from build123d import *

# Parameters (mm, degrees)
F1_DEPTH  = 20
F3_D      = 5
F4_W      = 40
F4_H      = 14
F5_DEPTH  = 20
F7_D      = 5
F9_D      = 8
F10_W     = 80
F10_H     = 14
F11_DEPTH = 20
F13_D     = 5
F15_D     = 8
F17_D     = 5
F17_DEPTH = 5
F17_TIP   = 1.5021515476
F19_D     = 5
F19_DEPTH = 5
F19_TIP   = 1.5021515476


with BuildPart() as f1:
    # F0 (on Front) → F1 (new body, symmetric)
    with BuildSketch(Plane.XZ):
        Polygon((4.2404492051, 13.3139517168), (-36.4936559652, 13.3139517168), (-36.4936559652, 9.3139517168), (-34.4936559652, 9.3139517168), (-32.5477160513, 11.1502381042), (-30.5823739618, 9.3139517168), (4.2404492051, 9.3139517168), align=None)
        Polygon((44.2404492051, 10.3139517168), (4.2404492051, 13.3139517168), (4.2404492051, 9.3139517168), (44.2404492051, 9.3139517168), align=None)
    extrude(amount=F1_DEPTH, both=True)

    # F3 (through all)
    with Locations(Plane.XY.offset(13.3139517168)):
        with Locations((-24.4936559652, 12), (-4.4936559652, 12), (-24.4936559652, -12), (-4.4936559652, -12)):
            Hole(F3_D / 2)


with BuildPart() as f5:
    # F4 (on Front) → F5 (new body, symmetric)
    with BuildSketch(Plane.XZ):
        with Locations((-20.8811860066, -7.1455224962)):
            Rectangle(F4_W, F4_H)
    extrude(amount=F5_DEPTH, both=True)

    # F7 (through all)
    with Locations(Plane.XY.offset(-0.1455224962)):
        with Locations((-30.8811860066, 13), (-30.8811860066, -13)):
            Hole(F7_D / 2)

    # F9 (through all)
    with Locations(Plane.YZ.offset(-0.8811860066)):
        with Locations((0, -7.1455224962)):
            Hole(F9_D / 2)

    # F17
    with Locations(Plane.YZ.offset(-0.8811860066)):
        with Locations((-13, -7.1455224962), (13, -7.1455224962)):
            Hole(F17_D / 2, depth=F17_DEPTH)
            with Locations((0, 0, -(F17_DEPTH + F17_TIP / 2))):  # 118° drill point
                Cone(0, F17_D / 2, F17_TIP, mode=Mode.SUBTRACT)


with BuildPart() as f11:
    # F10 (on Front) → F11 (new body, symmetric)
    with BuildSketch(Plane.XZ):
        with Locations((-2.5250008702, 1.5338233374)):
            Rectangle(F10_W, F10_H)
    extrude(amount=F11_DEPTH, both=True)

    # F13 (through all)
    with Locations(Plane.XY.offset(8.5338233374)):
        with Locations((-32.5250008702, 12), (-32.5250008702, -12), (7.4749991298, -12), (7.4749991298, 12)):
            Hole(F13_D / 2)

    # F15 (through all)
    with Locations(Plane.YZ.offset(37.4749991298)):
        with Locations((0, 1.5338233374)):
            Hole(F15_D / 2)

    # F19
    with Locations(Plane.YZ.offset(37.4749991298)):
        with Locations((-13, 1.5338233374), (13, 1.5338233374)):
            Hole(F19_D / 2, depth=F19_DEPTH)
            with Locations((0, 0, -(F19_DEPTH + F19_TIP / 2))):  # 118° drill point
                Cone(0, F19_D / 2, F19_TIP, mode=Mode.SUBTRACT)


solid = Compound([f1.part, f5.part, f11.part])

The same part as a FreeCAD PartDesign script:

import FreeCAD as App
import Part
import Sketcher

V = App.Vector
Q = App.Units.Quantity

doc = App.newDocument("Part")
body = doc.addObject("PartDesign::Body", "Body")

sketch1 = doc.addObject("Sketcher::SketchObject", "Sketch")
body.addObject(sketch1)
sketch1.AttachmentSupport = (doc.XZ_Plane, [""])
sketch1.MapMode = "FlatFace"
sketch1.addGeometry([
    Part.LineSegment(V(4.240449, 13.313952, 0), V(-36.493656, 13.313952, 0)),
    Part.LineSegment(V(-36.493656, 13.313952, 0), V(-36.493656, 9.313952, 0)),
    Part.LineSegment(V(-36.493656, 9.313952, 0), V(-34.493656, 9.313952, 0)),
    Part.LineSegment(V(-34.493656, 9.313952, 0), V(-32.547716, 11.150238, 0)),
    Part.LineSegment(V(-32.547716, 11.150238, 0), V(-30.582374, 9.313952, 0)),
    Part.LineSegment(V(-30.582374, 9.313952, 0), V(44.240449, 9.313952, 0)),
    Part.LineSegment(V(44.240449, 9.313952, 0), V(44.240449, 10.313952, 0)),
    Part.LineSegment(V(44.240449, 10.313952, 0), V(4.240449, 13.313952, 0)),
], False)
sketch1.addConstraint([
    Sketcher.Constraint("Coincident", 0, 2, 1, 1),
    Sketcher.Constraint("Coincident", 1, 2, 2, 1),
    Sketcher.Constraint("Coincident", 2, 2, 3, 1),
    Sketcher.Constraint("Coincident", 3, 2, 4, 1),
    Sketcher.Constraint("Coincident", 4, 2, 5, 1),
    Sketcher.Constraint("Coincident", 5, 2, 6, 1),
    Sketcher.Constraint("Coincident", 6, 2, 7, 1),
    Sketcher.Constraint("Coincident", 7, 2, 0, 1),
    Sketcher.Constraint("Horizontal", 0),
    Sketcher.Constraint("Vertical", 1),
    Sketcher.Constraint("Horizontal", 2),
    Sketcher.Constraint("Horizontal", 5),
    Sketcher.Constraint("Vertical", 6),
    Sketcher.Constraint("Horizontal", 2, 2, 4, 2),
    Sketcher.Constraint("DistanceX", 2, 1, 2, 2, Q("2 mm")),
    Sketcher.Constraint("DistanceY", 1, 2, 1, 1, Q("4 mm")),
    Sketcher.Constraint("DistanceY", 6, 1, 6, 2, Q("1 mm")),
    Sketcher.Constraint("DistanceX", 7, 2, 6, 2, Q("40 mm")),
    Sketcher.Constraint("Distance", 3, Q("2.675562 mm")),
    Sketcher.Constraint("DistanceX", 0, 2, 0, 1, Q("40.734105 mm")),
    Sketcher.Constraint("DistanceX", 5, 1, 5, 2, Q("74.822823 mm")),
    Sketcher.Constraint("DistanceY", -1, 1, 0, 2, Q("13.313952 mm")),
    Sketcher.Constraint("DistanceY", -1, 1, 3, 2, Q("11.150238 mm")),
    Sketcher.Constraint("DistanceX", -1, 1, 5, 2, Q("44.240449 mm")),
])
pad1 = doc.addObject("PartDesign::Pad", "Pad")
body.addObject(pad1)
pad1.Profile = sketch1
pad1.Length = 40
pad1.Midplane = True

sketch2 = doc.addObject("Sketcher::SketchObject", "Sketch001")
body.addObject(sketch2)
sketch2.AttachmentSupport = (doc.XY_Plane, [""])
sketch2.MapMode = "FlatFace"
sketch2.AttachmentOffset = App.Placement(V(0, 0, 13.313952), App.Rotation())
sketch2.addGeometry([
    Part.Circle(V(-24.493656, 12, 0), V(0, 0, 1), 2.5),
    Part.Circle(V(-4.493656, 12, 0), V(0, 0, 1), 2.5),
    Part.Circle(V(-24.493656, -12, 0), V(0, 0, 1), 2.5),
    Part.Circle(V(-4.493656, -12, 0), V(0, 0, 1), 2.5),
], False)
sketch2.addConstraint([
    Sketcher.Constraint("Equal", 0, 1),
    Sketcher.Constraint("Equal", 1, 2),
    Sketcher.Constraint("Equal", 2, 3),
    Sketcher.Constraint("Symmetric", 0, 3, 2, 3, -1),
    Sketcher.Constraint("Symmetric", 1, 3, 3, 3, -1),
    Sketcher.Constraint("Horizontal", 0, 3, 1, 3),
    Sketcher.Constraint("Diameter", 0, Q("5 mm")),
    Sketcher.Constraint("DistanceY", -1, 1, 0, 3, Q("12 mm")),
    Sketcher.Constraint("DistanceX", 0, 3, 1, 3, Q("20 mm")),
    Sketcher.Constraint("DistanceX", 0, 3, -1, 1, Q("24.493656 mm")),
])
doc.recompute()
hole = doc.addObject("PartDesign::Hole", "Hole")
body.addObject(hole)
hole.Profile = sketch2
hole.ThreadType = "None"
hole.Diameter = 5
hole.DepthType = "ThroughAll"
body2 = doc.addObject("PartDesign::Body", "Body001")

sketch3 = doc.addObject("Sketcher::SketchObject", "Sketch002")
body2.addObject(sketch3)
sketch3.AttachmentSupport = (doc.getObject("XZ_Plane001"), [""])
sketch3.MapMode = "FlatFace"
sketch3.addGeometry([
    Part.LineSegment(V(-40.881186, -0.145522, 0), V(-40.881186, -14.145522, 0)),
    Part.LineSegment(V(-40.881186, -14.145522, 0), V(-0.881186, -14.145522, 0)),
    Part.LineSegment(V(-0.881186, -14.145522, 0), V(-0.881186, -0.145522, 0)),
    Part.LineSegment(V(-0.881186, -0.145522, 0), V(-40.881186, -0.145522, 0)),
], False)
sketch3.addConstraint([
    Sketcher.Constraint("Coincident", 0, 2, 1, 1),
    Sketcher.Constraint("Coincident", 1, 2, 2, 1),
    Sketcher.Constraint("Coincident", 2, 2, 3, 1),
    Sketcher.Constraint("Coincident", 3, 2, 0, 1),
    Sketcher.Constraint("Vertical", 0),
    Sketcher.Constraint("Horizontal", 1),
    Sketcher.Constraint("Vertical", 2),
    Sketcher.Constraint("Horizontal", 3),
    Sketcher.Constraint("DistanceX", 1, 1, 1, 2, Q("40 mm")),
    Sketcher.Constraint("DistanceY", 0, 2, 0, 1, Q("14 mm")),
    Sketcher.Constraint("DistanceX", 0, 2, -1, 1, Q("40.881186 mm")),
    Sketcher.Constraint("DistanceY", 0, 2, -1, 1, Q("14.145522 mm")),
])
pad2 = doc.addObject("PartDesign::Pad", "Pad001")
body2.addObject(pad2)
pad2.Profile = sketch3
pad2.Length = 40
pad2.Midplane = True

sketch4 = doc.addObject("Sketcher::SketchObject", "Sketch003")
body2.addObject(sketch4)
sketch4.AttachmentSupport = (doc.getObject("XY_Plane001"), [""])
sketch4.MapMode = "FlatFace"
sketch4.AttachmentOffset = App.Placement(V(0, 0, -0.145522), App.Rotation())
sketch4.addGeometry([
    Part.Circle(V(-30.881186, 13, 0), V(0, 0, 1), 2.5),
    Part.Circle(V(-30.881186, -13, 0), V(0, 0, 1), 2.5),
], False)
sketch4.addConstraint([
    Sketcher.Constraint("Equal", 0, 1),
    Sketcher.Constraint("Symmetric", 0, 3, 1, 3, -1),
    Sketcher.Constraint("Diameter", 0, Q("5 mm")),
    Sketcher.Constraint("DistanceY", -1, 1, 0, 3, Q("13 mm")),
    Sketcher.Constraint("DistanceX", 0, 3, -1, 1, Q("30.881186 mm")),
])
doc.recompute()
hole2 = doc.addObject("PartDesign::Hole", "Hole001")
body2.addObject(hole2)
hole2.Profile = sketch4
hole2.ThreadType = "None"
hole2.Diameter = 5
hole2.DepthType = "ThroughAll"

sketch5 = doc.addObject("Sketcher::SketchObject", "Sketch004")
body2.addObject(sketch5)
sketch5.AttachmentSupport = (doc.getObject("YZ_Plane001"), [""])
sketch5.MapMode = "FlatFace"
sketch5.AttachmentOffset = App.Placement(V(0, 0, -0.881186), App.Rotation())
sketch5.addGeometry(Part.Circle(V(0, -7.145522, 0), V(0, 0, 1), 4), False)
sketch5.addConstraint([
    Sketcher.Constraint("PointOnObject", 0, 3, -2),
    Sketcher.Constraint("Diameter", 0, Q("8 mm")),
    Sketcher.Constraint("DistanceY", 0, 3, -1, 1, Q("7.145522 mm")),
])
doc.recompute()
hole3 = doc.addObject("PartDesign::Hole", "Hole002")
body2.addObject(hole3)
hole3.Profile = sketch5
hole3.ThreadType = "None"
hole3.Diameter = 8
hole3.DepthType = "ThroughAll"

sketch6 = doc.addObject("Sketcher::SketchObject", "Sketch005")
body2.addObject(sketch6)
sketch6.AttachmentSupport = (doc.getObject("YZ_Plane001"), [""])
sketch6.MapMode = "FlatFace"
sketch6.AttachmentOffset = App.Placement(V(0, 0, -0.881186), App.Rotation())
sketch6.addGeometry([
    Part.Circle(V(-13, -7.145522, 0), V(0, 0, 1), 2.5),
    Part.Circle(V(13, -7.145522, 0), V(0, 0, 1), 2.5),
], False)
sketch6.addConstraint([
    Sketcher.Constraint("Equal", 0, 1),
    Sketcher.Constraint("Symmetric", 0, 3, 1, 3, -2),
    Sketcher.Constraint("Diameter", 0, Q("5 mm")),
    Sketcher.Constraint("DistanceX", 0, 3, -1, 1, Q("13 mm")),
    Sketcher.Constraint("DistanceY", 0, 3, -1, 1, Q("7.145522 mm")),
])
doc.recompute()
hole4 = doc.addObject("PartDesign::Hole", "Hole003")
body2.addObject(hole4)
hole4.Profile = sketch6
hole4.ThreadType = "None"
hole4.Diameter = 5
hole4.DepthType = "Dimension"
hole4.Depth = 5
hole4.DrillPoint = "Angled"
hole4.DrillPointAngle = 118
body3 = doc.addObject("PartDesign::Body", "Body002")

sketch7 = doc.addObject("Sketcher::SketchObject", "Sketch006")
body3.addObject(sketch7)
sketch7.AttachmentSupport = (doc.getObject("XZ_Plane002"), [""])
sketch7.MapMode = "FlatFace"
sketch7.addGeometry([
    Part.LineSegment(V(-42.525001, 8.533823, 0), V(-42.525001, -5.466177, 0)),
    Part.LineSegment(V(-42.525001, -5.466177, 0), V(37.474999, -5.466177, 0)),
    Part.LineSegment(V(37.474999, -5.466177, 0), V(37.474999, 8.533823, 0)),
    Part.LineSegment(V(37.474999, 8.533823, 0), V(-42.525001, 8.533823, 0)),
], False)
sketch7.addConstraint([
    Sketcher.Constraint("Coincident", 0, 2, 1, 1),
    Sketcher.Constraint("Coincident", 1, 2, 2, 1),
    Sketcher.Constraint("Coincident", 2, 2, 3, 1),
    Sketcher.Constraint("Coincident", 3, 2, 0, 1),
    Sketcher.Constraint("Vertical", 0),
    Sketcher.Constraint("Horizontal", 1),
    Sketcher.Constraint("Vertical", 2),
    Sketcher.Constraint("Horizontal", 3),
    Sketcher.Constraint("DistanceX", 1, 1, 1, 2, Q("80 mm")),
    Sketcher.Constraint("DistanceY", 0, 2, 0, 1, Q("14 mm")),
    Sketcher.Constraint("DistanceX", 0, 2, -1, 1, Q("42.525001 mm")),
    Sketcher.Constraint("DistanceY", 0, 2, -1, 1, Q("5.466177 mm")),
])
pad3 = doc.addObject("PartDesign::Pad", "Pad002")
body3.addObject(pad3)
pad3.Profile = sketch7
pad3.Length = 40
pad3.Midplane = True

sketch8 = doc.addObject("Sketcher::SketchObject", "Sketch007")
body3.addObject(sketch8)
sketch8.AttachmentSupport = (doc.getObject("XY_Plane002"), [""])
sketch8.MapMode = "FlatFace"
sketch8.AttachmentOffset = App.Placement(V(0, 0, 8.533823), App.Rotation())
sketch8.addGeometry([
    Part.Circle(V(-32.525001, 12, 0), V(0, 0, 1), 2.5),
    Part.Circle(V(-32.525001, -12, 0), V(0, 0, 1), 2.5),
    Part.Circle(V(7.474999, -12, 0), V(0, 0, 1), 2.5),
    Part.Circle(V(7.474999, 12, 0), V(0, 0, 1), 2.5),
], False)
sketch8.addConstraint([
    Sketcher.Constraint("Equal", 0, 1),
    Sketcher.Constraint("Equal", 1, 2),
    Sketcher.Constraint("Equal", 2, 3),
    Sketcher.Constraint("Symmetric", 0, 3, 1, 3, -1),
    Sketcher.Constraint("Symmetric", 2, 3, 3, 3, -1),
    Sketcher.Constraint("Horizontal", 1, 3, 2, 3),
    Sketcher.Constraint("Diameter", 0, Q("5 mm")),
    Sketcher.Constraint("DistanceY", -1, 1, 0, 3, Q("12 mm")),
    Sketcher.Constraint("DistanceX", 1, 3, 2, 3, Q("40 mm")),
    Sketcher.Constraint("DistanceX", 0, 3, -1, 1, Q("32.525001 mm")),
])
doc.recompute()
hole5 = doc.addObject("PartDesign::Hole", "Hole004")
body3.addObject(hole5)
hole5.Profile = sketch8
hole5.ThreadType = "None"
hole5.Diameter = 5
hole5.DepthType = "ThroughAll"

sketch9 = doc.addObject("Sketcher::SketchObject", "Sketch008")
body3.addObject(sketch9)
sketch9.AttachmentSupport = (doc.getObject("YZ_Plane002"), [""])
sketch9.MapMode = "FlatFace"
sketch9.AttachmentOffset = App.Placement(V(0, 0, 37.474999), App.Rotation())
sketch9.addGeometry(Part.Circle(V(0, 1.533823, 0), V(0, 0, 1), 4), False)
sketch9.addConstraint([
    Sketcher.Constraint("PointOnObject", 0, 3, -2),
    Sketcher.Constraint("Diameter", 0, Q("8 mm")),
    Sketcher.Constraint("DistanceY", -1, 1, 0, 3, Q("1.533823 mm")),
])
doc.recompute()
hole6 = doc.addObject("PartDesign::Hole", "Hole005")
body3.addObject(hole6)
hole6.Profile = sketch9
hole6.ThreadType = "None"
hole6.Diameter = 8
hole6.DepthType = "ThroughAll"

sketch10 = doc.addObject("Sketcher::SketchObject", "Sketch009")
body3.addObject(sketch10)
sketch10.AttachmentSupport = (doc.getObject("YZ_Plane002"), [""])
sketch10.MapMode = "FlatFace"
sketch10.AttachmentOffset = App.Placement(V(0, 0, 37.474999), App.Rotation())
sketch10.addGeometry([
    Part.Circle(V(-13, 1.533823, 0), V(0, 0, 1), 2.5),
    Part.Circle(V(13, 1.533823, 0), V(0, 0, 1), 2.5),
], False)
sketch10.addConstraint([
    Sketcher.Constraint("Equal", 0, 1),
    Sketcher.Constraint("Symmetric", 0, 3, 1, 3, -2),
    Sketcher.Constraint("Diameter", 0, Q("5 mm")),
    Sketcher.Constraint("DistanceX", 0, 3, -1, 1, Q("13 mm")),
    Sketcher.Constraint("DistanceY", -1, 1, 0, 3, Q("1.533823 mm")),
])
doc.recompute()
hole7 = doc.addObject("PartDesign::Hole", "Hole006")
body3.addObject(hole7)
hole7.Profile = sketch10
hole7.ThreadType = "None"
hole7.Diameter = 5
hole7.DepthType = "Dimension"
hole7.Depth = 5
hole7.DrillPoint = "Angled"
hole7.DrillPointAngle = 118

doc.recompute()
